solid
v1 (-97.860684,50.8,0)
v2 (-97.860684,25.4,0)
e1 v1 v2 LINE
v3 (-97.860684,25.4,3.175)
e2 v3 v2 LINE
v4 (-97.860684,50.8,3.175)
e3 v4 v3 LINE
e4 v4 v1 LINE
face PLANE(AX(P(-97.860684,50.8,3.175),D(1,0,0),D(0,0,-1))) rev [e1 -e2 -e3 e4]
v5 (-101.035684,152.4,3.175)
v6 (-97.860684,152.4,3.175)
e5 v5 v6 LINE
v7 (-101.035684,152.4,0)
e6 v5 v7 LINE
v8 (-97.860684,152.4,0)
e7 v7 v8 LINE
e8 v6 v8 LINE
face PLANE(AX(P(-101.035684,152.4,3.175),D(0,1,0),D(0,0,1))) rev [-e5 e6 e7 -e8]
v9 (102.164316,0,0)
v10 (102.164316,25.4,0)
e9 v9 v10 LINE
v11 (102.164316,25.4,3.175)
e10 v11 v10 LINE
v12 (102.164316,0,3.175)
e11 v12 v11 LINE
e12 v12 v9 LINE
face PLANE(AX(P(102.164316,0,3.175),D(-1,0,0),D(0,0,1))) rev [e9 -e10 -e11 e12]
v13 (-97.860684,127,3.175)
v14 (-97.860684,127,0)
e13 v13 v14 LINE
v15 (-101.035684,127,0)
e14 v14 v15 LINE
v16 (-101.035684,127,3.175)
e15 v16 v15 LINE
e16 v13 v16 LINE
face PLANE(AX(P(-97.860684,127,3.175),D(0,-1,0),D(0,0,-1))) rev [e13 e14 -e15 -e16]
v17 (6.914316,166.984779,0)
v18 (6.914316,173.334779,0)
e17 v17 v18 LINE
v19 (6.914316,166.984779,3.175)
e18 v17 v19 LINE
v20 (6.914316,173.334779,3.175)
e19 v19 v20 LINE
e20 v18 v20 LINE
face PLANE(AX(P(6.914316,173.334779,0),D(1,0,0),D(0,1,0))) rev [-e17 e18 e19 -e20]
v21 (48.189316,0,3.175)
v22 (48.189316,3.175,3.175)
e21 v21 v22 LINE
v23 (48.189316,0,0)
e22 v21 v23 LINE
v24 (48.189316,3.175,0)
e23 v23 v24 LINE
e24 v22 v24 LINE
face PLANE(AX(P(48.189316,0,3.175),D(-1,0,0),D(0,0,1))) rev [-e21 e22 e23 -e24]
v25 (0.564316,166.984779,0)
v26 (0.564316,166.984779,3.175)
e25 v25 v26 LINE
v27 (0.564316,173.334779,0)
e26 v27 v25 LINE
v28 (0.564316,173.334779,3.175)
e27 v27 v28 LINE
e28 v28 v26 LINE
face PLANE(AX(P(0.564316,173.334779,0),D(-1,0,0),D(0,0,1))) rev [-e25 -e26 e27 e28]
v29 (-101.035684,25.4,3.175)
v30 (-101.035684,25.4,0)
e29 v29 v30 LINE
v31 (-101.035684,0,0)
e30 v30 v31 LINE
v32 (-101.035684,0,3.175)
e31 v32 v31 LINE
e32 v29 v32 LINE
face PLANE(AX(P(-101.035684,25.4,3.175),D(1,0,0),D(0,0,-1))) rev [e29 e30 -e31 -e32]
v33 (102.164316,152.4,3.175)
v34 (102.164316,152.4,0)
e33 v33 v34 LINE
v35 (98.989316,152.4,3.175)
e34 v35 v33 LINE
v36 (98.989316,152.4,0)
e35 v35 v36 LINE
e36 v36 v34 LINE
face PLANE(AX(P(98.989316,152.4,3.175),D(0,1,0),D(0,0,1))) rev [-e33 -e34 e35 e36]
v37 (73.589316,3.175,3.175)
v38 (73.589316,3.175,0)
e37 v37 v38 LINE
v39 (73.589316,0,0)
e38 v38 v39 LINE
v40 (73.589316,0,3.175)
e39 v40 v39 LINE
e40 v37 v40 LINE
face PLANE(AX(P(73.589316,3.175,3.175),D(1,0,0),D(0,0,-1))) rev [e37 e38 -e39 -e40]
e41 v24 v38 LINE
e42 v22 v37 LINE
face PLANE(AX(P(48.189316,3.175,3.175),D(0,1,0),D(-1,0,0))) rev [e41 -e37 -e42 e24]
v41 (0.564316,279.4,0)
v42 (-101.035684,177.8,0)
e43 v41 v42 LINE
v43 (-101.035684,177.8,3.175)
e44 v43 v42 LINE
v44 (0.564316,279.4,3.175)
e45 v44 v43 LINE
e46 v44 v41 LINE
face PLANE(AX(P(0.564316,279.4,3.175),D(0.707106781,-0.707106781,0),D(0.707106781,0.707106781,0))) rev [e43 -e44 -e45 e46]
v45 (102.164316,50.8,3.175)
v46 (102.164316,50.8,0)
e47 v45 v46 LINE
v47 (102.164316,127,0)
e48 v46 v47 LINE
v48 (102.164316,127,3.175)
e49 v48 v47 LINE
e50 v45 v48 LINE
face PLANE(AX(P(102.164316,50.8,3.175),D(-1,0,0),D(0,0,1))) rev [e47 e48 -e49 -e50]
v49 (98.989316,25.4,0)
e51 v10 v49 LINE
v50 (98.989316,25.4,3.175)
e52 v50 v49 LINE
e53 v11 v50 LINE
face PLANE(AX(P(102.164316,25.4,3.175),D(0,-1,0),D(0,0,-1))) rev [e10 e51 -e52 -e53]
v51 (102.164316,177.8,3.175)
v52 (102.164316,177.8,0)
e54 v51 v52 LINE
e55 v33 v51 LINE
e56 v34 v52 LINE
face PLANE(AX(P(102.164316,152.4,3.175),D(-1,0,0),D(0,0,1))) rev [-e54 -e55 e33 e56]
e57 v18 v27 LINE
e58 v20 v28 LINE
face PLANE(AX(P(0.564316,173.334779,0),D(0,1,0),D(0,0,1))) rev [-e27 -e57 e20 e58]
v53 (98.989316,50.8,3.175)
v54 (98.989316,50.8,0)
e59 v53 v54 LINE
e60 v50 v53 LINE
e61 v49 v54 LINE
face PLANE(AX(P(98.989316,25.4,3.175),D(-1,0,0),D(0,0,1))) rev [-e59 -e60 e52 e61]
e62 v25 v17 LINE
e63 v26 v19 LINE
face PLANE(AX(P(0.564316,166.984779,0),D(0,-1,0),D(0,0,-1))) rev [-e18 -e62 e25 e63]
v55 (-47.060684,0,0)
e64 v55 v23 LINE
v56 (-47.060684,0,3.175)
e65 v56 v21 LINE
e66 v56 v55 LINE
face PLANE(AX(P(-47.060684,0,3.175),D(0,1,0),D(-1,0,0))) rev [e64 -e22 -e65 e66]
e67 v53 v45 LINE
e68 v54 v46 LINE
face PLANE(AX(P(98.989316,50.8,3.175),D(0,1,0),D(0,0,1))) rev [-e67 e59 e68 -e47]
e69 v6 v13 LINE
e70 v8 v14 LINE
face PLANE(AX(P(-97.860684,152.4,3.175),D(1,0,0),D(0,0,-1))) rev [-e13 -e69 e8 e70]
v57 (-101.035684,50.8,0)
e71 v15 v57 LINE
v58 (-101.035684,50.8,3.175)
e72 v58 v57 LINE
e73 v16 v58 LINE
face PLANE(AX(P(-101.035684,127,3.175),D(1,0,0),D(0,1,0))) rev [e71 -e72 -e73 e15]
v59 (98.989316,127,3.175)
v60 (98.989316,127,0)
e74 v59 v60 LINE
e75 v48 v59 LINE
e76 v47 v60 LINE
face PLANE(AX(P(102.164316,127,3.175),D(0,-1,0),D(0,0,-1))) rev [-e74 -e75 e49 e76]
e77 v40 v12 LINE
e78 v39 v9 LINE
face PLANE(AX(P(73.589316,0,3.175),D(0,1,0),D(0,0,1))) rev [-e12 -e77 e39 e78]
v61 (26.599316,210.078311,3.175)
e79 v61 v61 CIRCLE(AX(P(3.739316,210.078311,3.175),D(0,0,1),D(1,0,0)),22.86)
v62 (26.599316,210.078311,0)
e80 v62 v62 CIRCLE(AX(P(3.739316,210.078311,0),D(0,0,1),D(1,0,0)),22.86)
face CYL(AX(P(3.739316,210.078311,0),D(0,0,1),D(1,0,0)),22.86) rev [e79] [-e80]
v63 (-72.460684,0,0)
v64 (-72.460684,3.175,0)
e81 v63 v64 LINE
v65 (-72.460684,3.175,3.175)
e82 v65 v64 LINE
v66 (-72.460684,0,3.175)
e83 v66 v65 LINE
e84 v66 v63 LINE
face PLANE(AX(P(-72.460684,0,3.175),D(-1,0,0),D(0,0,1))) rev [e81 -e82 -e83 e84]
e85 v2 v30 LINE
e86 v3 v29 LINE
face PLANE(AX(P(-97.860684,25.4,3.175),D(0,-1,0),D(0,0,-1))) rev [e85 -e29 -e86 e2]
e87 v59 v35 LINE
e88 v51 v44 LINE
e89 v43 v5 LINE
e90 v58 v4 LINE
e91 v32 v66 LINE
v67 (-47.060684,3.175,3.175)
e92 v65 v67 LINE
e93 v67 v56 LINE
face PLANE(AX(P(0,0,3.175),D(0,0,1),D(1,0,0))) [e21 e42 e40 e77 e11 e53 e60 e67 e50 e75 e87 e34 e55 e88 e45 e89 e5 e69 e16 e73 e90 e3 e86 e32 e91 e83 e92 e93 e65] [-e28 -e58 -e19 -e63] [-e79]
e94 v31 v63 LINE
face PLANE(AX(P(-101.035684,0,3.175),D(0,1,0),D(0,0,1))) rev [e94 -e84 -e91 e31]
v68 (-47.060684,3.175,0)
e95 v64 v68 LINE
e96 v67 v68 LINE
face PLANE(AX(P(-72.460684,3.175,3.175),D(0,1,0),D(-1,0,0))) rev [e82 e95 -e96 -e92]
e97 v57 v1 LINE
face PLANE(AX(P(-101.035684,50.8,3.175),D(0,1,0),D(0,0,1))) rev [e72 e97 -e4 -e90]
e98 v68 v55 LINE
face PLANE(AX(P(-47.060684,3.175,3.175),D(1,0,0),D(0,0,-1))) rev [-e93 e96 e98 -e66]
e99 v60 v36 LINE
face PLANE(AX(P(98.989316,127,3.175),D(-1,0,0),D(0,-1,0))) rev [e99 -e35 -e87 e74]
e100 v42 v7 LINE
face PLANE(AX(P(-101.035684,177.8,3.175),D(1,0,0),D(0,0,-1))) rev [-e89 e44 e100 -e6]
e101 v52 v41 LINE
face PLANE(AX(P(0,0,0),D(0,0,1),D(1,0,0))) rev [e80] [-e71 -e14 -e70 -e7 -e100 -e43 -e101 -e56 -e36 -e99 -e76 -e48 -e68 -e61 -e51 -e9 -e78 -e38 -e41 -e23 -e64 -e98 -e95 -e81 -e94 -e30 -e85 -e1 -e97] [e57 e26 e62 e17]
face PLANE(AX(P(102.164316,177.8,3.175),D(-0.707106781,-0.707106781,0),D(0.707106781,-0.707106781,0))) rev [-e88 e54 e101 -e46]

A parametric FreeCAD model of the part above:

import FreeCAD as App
import Part
import Sketcher
Q = App.Units.Quantity


def add_polygon(sketch, points):
    """Adds a closed chain of lines whose ends are joined by coincident constraints."""
    first, n = sketch.GeometryCount, len(points)
    for a, b in zip(points, points[1:] + points[:1]):
        sketch.addGeometry(Part.LineSegment(App.Vector(*a, 0), App.Vector(*b, 0)), False)
    for i in range(n):
        sketch.addConstraint(Sketcher.Constraint("Coincident", first + i, 2, first + (i + 1) % n, 1))

doc = App.newDocument("Part")
params = doc.addObject("Spreadsheet::Sheet", "Params")
for row, (alias, value) in enumerate([
    ("sketch1_width", "1 in"),
    ("sketch1_height", "3 in"),
    ("sketch1_width2", "3.75 in"),
    ("pad1_length", "0.125 in"),
    ("sketch2_diameter", "1.8 in"),
    ("pocket1_length", "0.125 in"),
    ("sketch3_width", "0.25 in"),
    ("pocket2_length", "0.125 in"),
], start=1):
    params.set(f"A{row}", alias)
    params.set(f"B{row}", "=" + value)
    params.setAlias(f"B{row}", alias)

body = doc.addObject("PartDesign::Body", "Body")

# Sketch on XY plane
sketch1 = body.newObject("Sketcher::SketchObject", "Sketch")
sketch1.AttachmentSupport = (doc.getObject("XY_Plane"), [""])
sketch1.MapMode = "FlatFace"
add_polygon(sketch1, [(0.564316, 279.4), (-101.035684, 177.8), (-101.035684, 152.4), (-97.860684, 152.4), (-97.860684, 127), (-101.035684, 127), (-101.035684, 50.8), (-97.860684, 50.8), (-97.860684, 25.4), (-101.035684, 25.4), (-101.035684, 0), (-72.460684, 0), (-72.460684, 3.175), (-47.060684, 3.175), (-47.060684, 0), (48.189316, 0), (48.189316, 3.175), (73.589316, 3.175), (73.589316, 0), (102.164316, 0), (102.164316, 25.4), (98.989316, 25.4), (98.989316, 50.8), (102.164316, 50.8), (102.164316, 127), (98.989316, 127), (98.989316, 152.4), (102.164316, 152.4), (102.164316, 177.8)])  # lines 0-28
sketch1.addConstraint(Sketcher.Constraint("Vertical", 1))
sketch1.addConstraint(Sketcher.Constraint("Horizontal", 2))
sketch1.addConstraint(Sketcher.Constraint("Vertical", 3))
sketch1.addConstraint(Sketcher.Constraint("Horizontal", 4))
sketch1.addConstraint(Sketcher.Constraint("Vertical", 5))
sketch1.addConstraint(Sketcher.Constraint("Horizontal", 6))
sketch1.addConstraint(Sketcher.Constraint("Vertical", 7))
sketch1.addConstraint(Sketcher.Constraint("Horizontal", 8))
sketch1.addConstraint(Sketcher.Constraint("Vertical", 9))
sketch1.addConstraint(Sketcher.Constraint("Horizontal", 10))
sketch1.addConstraint(Sketcher.Constraint("Vertical", 11))
sketch1.addConstraint(Sketcher.Constraint("Horizontal", 12))
sketch1.addConstraint(Sketcher.Constraint("Vertical", 13))
sketch1.addConstraint(Sketcher.Constraint("Horizontal", 14))
sketch1.addConstraint(Sketcher.Constraint("Vertical", 15))
sketch1.addConstraint(Sketcher.Constraint("Horizontal", 16))
sketch1.addConstraint(Sketcher.Constraint("Vertical", 17))
sketch1.addConstraint(Sketcher.Constraint("Horizontal", 18))
sketch1.addConstraint(Sketcher.Constraint("Vertical", 19))
sketch1.addConstraint(Sketcher.Constraint("Horizontal", 20))
sketch1.addConstraint(Sketcher.Constraint("Vertical", 21))
sketch1.addConstraint(Sketcher.Constraint("Horizontal", 22))
sketch1.addConstraint(Sketcher.Constraint("Vertical", 23))
sketch1.addConstraint(Sketcher.Constraint("Horizontal", 24))
sketch1.addConstraint(Sketcher.Constraint("Vertical", 25))
sketch1.addConstraint(Sketcher.Constraint("Horizontal", 26))
sketch1.addConstraint(Sketcher.Constraint("Vertical", 27))
sketch1.addConstraint(Sketcher.Constraint("PointOnObject", 9, 2, -1))
sketch1.addConstraint(Sketcher.Constraint("PointOnObject", 13, 2, -1))
sketch1.addConstraint(Sketcher.Constraint("PointOnObject", 17, 2, -1))
sketch1.addConstraint(Sketcher.Constraint("Perpendicular", 0, 28))
sketch1.addConstraint(Sketcher.Constraint("Horizontal", 12, 2, 15, 2))
sketch1.addConstraint(Sketcher.Constraint("Horizontal", 8, 2, 19, 2))
sketch1.addConstraint(Sketcher.Constraint("Horizontal", 6, 2, 21, 2))
sketch1.addConstraint(Sketcher.Constraint("Horizontal", 4, 2, 23, 2))
sketch1.addConstraint(Sketcher.Constraint("Horizontal", 2, 2, 25, 2))
sketch1.addConstraint(Sketcher.Constraint("Horizontal", 0, 2, 27, 2))
sketch1.addConstraint(Sketcher.Constraint("Vertical", 1, 2, 4, 2))
sketch1.addConstraint(Sketcher.Constraint("Vertical", 3, 2, 6, 2))
sketch1.addConstraint(Sketcher.Constraint("Vertical", 5, 2, 8, 2))
sketch1.addConstraint(Sketcher.Constraint("Vertical", 19, 2, 22, 2))
sketch1.addConstraint(Sketcher.Constraint("Vertical", 21, 2, 24, 2))
sketch1.addConstraint(Sketcher.Constraint("Vertical", 23, 2, 26, 2))
sketch1.addConstraint(Sketcher.Constraint("Equal", 12, 16))
sketch1.addConstraint(Sketcher.Constraint("Equal", 10, 18))
sketch1.addConstraint(Sketcher.Constraint("Equal", 8, 20))
sketch1.addConstraint(Sketcher.Constraint("Equal", 16, 1))
sketch1.addConstraint(Sketcher.Constraint("Equal", 1, 3))
sketch1.addConstraint(Sketcher.Constraint("Equal", 3, 7))
sketch1.addConstraint(Sketcher.Constraint("Equal", 7, 9))
sketch1.addConstraint(Sketcher.Constraint("Equal", 26, 11))
sketch1.addConstraint(Sketcher.Constraint("Equal", 0, 28))
sketch1.addConstraint(Sketcher.Constraint("DistanceX", 12, 1, 12, 2, Q("1 in")))
sketch1.addConstraint(Sketcher.Constraint("DistanceY", 5, 2, 5, 1, Q("3 in")))
sketch1.addConstraint(Sketcher.Constraint("DistanceY", -1, 1, 28, 2, Q("11 in")))
sketch1.addConstraint(Sketcher.Constraint("DistanceX", 7, 2, 10, 2, Q("1 in")))
sketch1.addConstraint(Sketcher.Constraint("DistanceX", 14, 1, 14, 2, Q("3.75 in")))
sketch1.addConstraint(Sketcher.Constraint("DistanceX", 0, 2, -1, 1, Q("101.035684 mm")))
sketch1.setExpression("Constraints[81]", "Params.sketch1_width")
sketch1.setExpression("Constraints[82]", "Params.sketch1_height")
sketch1.setExpression("Constraints[85]", "Params.sketch1_width2")
pad1 = body.newObject("PartDesign::Pad", "Pad")
pad1.Profile = sketch1
pad1.setExpression("Length", "Params.pad1_length")

# Sketch on XY plane
sketch2 = body.newObject("Sketcher::SketchObject", "Sketch001")
sketch2.AttachmentSupport = (doc.getObject("XY_Plane"), [""])
sketch2.MapMode = "FlatFace"
sketch2.AttachmentOffset = App.Placement(App.Vector(0, 0, 0.125 * 25.4), App.Rotation())
sketch2.addGeometry(Part.Circle(App.Vector(3.739316, 210.078311, 0), App.Vector(0, 0, 1), 22.86), False)
sketch2.addConstraint(Sketcher.Constraint("Diameter", 0, Q("1.8 in")))
sketch2.addConstraint(Sketcher.Constraint("DistanceY", -1, 1, 0, 3, Q("210.078311 mm")))
sketch2.addConstraint(Sketcher.Constraint("DistanceX", -1, 1, 0, 3, Q("3.739316 mm")))
sketch2.setExpression("Constraints[0]", "Params.sketch2_diameter")
pocket1 = body.newObject("PartDesign::Pocket", "Pocket")
pocket1.Profile = sketch2
pocket1.setExpression("Length", "Params.pocket1_length")

# Sketch on XY plane
sketch3 = body.newObject("Sketcher::SketchObject", "Sketch002")
sketch3.AttachmentSupport = (doc.getObject("XY_Plane"), [""])
sketch3.MapMode = "FlatFace"
sketch3.AttachmentOffset = App.Placement(App.Vector(0, 0, 0.125 * 25.4), App.Rotation())
add_polygon(sketch3, [(0.564316, 173.334779), (0.564316, 166.984779), (6.914316, 166.984779), (6.914316, 173.334779)])  # lines 0-3
sketch3.addConstraint(Sketcher.Constraint("Vertical", 0))
sketch3.addConstraint(Sketcher.Constraint("Horizontal", 1))
sketch3.addConstraint(Sketcher.Constraint("Vertical", 2))
sketch3.addConstraint(Sketcher.Constraint("Horizontal", 3))
sketch3.addConstraint(Sketcher.Constraint("Equal", 3, 0))
sketch3.addConstraint(Sketcher.Constraint("DistanceX", 1, 1, 1, 2, Q("0.25 in")))
sketch3.addConstraint(Sketcher.Constraint("DistanceY", -1, 1, 0, 2, Q("166.984779 mm")))
sketch3.addConstraint(Sketcher.Constraint("DistanceX", -1, 1, 0, 2, Q("0.564316 mm")))
sketch3.setExpression("Constraints[9]", "Params.sketch3_width")
pocket2 = body.newObject("PartDesign::Pocket", "Pocket001")
pocket2.Profile = sketch3
pocket2.setExpression("Length", "Params.pocket2_length")

doc.recompute()
